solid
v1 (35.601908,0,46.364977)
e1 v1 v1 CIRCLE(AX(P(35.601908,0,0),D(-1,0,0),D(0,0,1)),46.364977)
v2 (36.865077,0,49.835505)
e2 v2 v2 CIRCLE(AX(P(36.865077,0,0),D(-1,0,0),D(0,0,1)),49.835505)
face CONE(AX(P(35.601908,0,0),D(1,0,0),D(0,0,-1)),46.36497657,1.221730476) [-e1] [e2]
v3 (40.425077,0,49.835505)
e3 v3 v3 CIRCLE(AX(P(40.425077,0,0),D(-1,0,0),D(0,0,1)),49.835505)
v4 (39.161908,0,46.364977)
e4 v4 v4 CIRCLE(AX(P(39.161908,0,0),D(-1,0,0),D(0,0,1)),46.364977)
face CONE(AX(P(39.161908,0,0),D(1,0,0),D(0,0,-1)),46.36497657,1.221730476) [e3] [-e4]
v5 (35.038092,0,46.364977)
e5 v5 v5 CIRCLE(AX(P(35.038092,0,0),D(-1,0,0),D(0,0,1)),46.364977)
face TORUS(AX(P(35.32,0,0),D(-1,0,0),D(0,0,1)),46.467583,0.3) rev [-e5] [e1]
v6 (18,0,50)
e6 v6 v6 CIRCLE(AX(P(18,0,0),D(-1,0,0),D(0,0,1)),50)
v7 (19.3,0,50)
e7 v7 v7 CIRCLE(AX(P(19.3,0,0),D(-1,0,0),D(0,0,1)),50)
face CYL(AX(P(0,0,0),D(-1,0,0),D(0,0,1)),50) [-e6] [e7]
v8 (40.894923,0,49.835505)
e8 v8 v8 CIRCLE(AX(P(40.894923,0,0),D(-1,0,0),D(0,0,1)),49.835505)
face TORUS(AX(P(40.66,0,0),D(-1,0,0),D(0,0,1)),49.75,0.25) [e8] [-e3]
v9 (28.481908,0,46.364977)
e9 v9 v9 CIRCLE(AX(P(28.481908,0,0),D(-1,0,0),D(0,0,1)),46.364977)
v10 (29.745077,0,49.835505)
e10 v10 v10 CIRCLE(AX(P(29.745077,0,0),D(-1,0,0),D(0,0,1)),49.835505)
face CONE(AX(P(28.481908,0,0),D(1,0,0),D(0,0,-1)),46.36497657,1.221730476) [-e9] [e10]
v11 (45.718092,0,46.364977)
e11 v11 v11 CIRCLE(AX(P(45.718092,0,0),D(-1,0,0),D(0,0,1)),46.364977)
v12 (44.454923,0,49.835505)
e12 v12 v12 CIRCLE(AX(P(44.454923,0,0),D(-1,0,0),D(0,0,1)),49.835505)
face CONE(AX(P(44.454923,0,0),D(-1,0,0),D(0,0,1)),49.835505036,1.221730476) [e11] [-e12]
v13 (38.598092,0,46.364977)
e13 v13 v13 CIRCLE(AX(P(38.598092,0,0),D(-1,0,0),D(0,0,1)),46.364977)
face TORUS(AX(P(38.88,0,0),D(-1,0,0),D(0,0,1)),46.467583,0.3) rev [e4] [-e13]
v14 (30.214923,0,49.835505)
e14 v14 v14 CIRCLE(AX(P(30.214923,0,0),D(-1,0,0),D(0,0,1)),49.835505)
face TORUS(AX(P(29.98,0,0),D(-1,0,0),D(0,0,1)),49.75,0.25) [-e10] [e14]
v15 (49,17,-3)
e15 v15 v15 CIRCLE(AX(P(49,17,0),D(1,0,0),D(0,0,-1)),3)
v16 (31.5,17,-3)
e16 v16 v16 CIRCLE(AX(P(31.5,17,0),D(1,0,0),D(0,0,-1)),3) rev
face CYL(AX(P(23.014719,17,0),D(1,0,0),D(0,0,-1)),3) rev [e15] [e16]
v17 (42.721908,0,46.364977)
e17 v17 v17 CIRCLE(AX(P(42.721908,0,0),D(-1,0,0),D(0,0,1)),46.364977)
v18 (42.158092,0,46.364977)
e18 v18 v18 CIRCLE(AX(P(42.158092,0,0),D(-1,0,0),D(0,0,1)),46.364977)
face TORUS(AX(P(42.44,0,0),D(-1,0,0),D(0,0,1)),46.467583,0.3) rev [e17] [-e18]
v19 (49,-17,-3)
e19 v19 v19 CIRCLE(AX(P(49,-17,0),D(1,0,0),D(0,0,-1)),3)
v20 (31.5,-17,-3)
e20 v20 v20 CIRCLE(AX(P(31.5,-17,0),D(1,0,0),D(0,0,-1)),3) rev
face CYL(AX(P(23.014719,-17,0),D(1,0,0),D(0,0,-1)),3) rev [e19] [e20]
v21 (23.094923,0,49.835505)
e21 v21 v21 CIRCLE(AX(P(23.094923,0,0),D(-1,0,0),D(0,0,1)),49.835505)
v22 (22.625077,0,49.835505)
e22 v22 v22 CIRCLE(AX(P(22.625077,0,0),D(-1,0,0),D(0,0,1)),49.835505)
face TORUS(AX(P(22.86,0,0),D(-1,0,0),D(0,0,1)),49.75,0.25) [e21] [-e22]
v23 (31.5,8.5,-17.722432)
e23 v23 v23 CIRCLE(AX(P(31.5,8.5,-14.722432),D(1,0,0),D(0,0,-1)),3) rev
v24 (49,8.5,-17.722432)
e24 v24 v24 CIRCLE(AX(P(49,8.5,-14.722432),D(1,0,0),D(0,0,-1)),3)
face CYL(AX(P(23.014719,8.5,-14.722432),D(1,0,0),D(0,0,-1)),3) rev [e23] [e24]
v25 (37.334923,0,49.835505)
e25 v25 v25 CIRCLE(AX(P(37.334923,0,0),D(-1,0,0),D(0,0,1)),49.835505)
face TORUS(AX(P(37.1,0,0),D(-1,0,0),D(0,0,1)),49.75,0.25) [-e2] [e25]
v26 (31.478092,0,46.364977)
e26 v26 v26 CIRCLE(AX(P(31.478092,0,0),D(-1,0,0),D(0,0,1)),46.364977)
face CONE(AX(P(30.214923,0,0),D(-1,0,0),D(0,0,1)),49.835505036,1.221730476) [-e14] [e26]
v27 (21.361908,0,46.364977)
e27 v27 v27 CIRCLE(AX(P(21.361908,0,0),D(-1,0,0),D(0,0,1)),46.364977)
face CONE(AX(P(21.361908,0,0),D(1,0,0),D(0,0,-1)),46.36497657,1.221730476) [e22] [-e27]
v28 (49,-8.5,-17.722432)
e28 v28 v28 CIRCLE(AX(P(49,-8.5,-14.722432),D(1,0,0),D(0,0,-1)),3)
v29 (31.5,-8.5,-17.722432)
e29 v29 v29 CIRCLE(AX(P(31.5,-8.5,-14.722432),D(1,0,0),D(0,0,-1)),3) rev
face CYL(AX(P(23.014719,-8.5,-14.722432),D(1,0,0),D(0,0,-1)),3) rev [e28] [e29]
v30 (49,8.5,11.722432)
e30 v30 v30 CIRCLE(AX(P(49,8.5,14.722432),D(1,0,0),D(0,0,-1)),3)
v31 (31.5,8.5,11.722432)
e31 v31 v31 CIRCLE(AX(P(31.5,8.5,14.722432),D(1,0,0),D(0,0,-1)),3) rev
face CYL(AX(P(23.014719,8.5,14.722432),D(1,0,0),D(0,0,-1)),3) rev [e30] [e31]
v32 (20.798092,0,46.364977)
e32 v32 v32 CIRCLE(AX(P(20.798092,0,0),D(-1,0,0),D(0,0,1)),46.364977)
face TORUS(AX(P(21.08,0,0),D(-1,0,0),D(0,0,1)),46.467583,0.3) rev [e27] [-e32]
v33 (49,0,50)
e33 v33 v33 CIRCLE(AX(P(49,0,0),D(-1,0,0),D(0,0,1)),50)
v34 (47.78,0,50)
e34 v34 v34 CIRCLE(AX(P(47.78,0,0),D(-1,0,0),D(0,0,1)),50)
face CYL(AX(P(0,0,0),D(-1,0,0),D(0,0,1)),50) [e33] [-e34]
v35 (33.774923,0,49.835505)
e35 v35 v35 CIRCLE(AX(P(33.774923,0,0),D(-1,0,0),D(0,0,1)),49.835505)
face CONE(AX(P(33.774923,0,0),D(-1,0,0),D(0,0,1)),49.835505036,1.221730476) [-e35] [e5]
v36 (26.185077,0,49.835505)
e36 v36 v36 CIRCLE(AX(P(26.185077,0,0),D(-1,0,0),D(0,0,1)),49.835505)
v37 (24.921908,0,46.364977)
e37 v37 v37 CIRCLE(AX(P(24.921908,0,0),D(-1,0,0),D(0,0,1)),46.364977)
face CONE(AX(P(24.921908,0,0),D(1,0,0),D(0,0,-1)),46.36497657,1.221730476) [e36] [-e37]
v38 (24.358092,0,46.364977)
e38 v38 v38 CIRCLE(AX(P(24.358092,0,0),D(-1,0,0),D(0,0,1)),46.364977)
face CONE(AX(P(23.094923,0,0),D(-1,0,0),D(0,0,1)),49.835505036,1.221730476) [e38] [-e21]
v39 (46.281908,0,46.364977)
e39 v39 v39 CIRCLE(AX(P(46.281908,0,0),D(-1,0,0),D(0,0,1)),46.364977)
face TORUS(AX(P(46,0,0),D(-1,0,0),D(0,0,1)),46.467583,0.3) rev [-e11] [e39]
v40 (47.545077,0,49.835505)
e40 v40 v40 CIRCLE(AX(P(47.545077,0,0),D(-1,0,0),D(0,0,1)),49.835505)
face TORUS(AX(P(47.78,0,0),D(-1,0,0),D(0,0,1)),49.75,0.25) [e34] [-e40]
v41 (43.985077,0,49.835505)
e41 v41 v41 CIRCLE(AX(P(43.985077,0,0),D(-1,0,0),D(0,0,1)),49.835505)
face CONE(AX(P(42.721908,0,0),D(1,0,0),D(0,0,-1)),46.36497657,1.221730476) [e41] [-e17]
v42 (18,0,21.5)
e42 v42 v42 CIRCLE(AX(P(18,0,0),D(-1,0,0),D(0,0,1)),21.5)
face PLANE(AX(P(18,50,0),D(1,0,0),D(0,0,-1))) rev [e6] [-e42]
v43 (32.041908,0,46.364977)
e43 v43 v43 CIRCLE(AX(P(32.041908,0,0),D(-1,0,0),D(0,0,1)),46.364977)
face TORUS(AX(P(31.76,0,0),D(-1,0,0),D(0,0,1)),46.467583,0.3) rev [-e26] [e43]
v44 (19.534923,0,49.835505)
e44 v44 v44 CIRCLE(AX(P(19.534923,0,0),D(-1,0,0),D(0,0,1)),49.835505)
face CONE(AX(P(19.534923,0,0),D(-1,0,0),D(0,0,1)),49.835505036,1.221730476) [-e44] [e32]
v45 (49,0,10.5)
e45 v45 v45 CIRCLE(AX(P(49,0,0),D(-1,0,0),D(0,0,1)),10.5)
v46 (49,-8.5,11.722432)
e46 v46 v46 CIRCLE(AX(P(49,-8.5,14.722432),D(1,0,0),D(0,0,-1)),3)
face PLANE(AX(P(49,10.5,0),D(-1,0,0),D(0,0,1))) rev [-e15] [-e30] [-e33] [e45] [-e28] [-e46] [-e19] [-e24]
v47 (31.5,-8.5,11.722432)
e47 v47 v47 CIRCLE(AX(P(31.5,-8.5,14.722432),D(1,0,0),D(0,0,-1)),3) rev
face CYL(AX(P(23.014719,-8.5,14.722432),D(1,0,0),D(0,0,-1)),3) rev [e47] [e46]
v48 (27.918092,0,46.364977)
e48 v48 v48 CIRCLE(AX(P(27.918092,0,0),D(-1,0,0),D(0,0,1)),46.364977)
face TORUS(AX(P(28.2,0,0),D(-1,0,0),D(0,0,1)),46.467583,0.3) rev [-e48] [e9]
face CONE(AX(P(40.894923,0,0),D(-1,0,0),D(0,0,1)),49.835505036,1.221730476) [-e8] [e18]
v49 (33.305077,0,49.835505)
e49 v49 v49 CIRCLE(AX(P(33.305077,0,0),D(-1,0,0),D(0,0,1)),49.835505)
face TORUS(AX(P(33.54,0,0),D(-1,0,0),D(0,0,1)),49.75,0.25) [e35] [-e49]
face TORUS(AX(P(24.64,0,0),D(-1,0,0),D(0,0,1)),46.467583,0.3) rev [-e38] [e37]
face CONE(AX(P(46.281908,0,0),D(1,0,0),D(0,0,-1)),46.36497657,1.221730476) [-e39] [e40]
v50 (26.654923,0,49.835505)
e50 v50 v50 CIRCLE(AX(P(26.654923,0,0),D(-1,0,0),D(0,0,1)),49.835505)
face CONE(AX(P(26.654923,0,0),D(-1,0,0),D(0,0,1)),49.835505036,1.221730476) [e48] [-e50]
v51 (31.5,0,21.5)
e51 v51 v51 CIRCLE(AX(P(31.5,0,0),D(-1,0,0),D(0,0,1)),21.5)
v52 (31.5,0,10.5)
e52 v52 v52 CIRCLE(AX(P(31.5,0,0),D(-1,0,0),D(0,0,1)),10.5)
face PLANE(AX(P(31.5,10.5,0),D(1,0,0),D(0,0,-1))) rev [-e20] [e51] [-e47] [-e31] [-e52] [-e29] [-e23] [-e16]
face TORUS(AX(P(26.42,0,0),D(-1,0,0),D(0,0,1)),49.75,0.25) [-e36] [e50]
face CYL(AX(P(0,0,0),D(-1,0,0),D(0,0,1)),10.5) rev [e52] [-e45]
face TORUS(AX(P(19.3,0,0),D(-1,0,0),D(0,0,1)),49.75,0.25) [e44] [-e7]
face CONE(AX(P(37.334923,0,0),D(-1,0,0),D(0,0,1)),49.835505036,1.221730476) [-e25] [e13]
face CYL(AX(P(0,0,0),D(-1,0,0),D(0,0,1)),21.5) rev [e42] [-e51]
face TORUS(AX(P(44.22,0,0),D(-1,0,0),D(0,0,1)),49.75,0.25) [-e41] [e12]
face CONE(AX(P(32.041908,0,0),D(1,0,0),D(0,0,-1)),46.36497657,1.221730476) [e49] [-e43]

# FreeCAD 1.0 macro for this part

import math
import FreeCAD as App
import Part
import Sketcher
Q = App.Units.Quantity


def add_polygon(sketch, points):
    """Adds a closed chain of lines whose ends are joined by coincident constraints."""
    first, n = sketch.GeometryCount, len(points)
    for a, b in zip(points, points[1:] + points[:1]):
        sketch.addGeometry(Part.LineSegment(App.Vector(*a, 0), App.Vector(*b, 0)), False)
    for i in range(n):
        sketch.addConstraint(Sketcher.Constraint("Coincident", first + i, 2, first + (i + 1) % n, 1))

doc = App.newDocument("Part")
body = doc.addObject("PartDesign::Body", "Body")

# Sketch on XY plane
sketch1 = body.newObject("Sketcher::SketchObject", "Sketch")
sketch1.AttachmentSupport = (doc.getObject("XY_Plane"), [""])
sketch1.MapMode = "FlatFace"
add_polygon(sketch1, [(49, 10.5), (49, 50), (18, 50), (18, 21.5), (31.5, 21.5), (31.5, 10.5)])  # lines 0-5
sketch1.addConstraint(Sketcher.Constraint("Vertical", 0))
sketch1.addConstraint(Sketcher.Constraint("Horizontal", 1))
sketch1.addConstraint(Sketcher.Constraint("Vertical", 2))
sketch1.addConstraint(Sketcher.Constraint("Horizontal", 3))
sketch1.addConstraint(Sketcher.Constraint("Vertical", 4))
sketch1.addConstraint(Sketcher.Constraint("Horizontal", 5))
sketch1.addConstraint(Sketcher.Constraint("DistanceX", 1, 2, 1, 1, Q("31 mm")))
sketch1.addConstraint(Sketcher.Constraint("DistanceY", 4, 2, 4, 1, Q("11 mm")))
sketch1.addConstraint(Sketcher.Constraint("DistanceX", 3, 1, 3, 2, Q("13.5 mm")))
sketch1.addConstraint(Sketcher.Constraint("DistanceY", 0, 1, 0, 2, Q("39.5 mm")))
sketch1.addConstraint(Sketcher.Constraint("DistanceX", -1, 1, 0, 2, Q("49 mm")))
sketch1.addConstraint(Sketcher.Constraint("DistanceY", -1, 1, 0, 2, Q("50 mm")))
revolution = body.newObject("PartDesign::Revolution", "Revolution")
revolution.Profile = sketch1
revolution.ReferenceAxis = (sketch1, ["H_Axis"])
revolution.Angle = 360

# Sketch on XY plane
sketch2 = body.newObject("Sketcher::SketchObject", "Sketch001")
sketch2.AttachmentSupport = (doc.getObject("XY_Plane"), [""])
sketch2.MapMode = "FlatFace"
sketch2.addGeometry(Part.LineSegment(App.Vector(46.281908, 46.364977, 0), App.Vector(47.545077, 49.835505, 0)), False)
sketch2.addGeometry(Part.ArcOfCircle(Part.Circle(App.Vector(47.78, 49.75, 0), App.Vector(0, 0, 1), 0.25), math.radians(90), math.radians(160)), False)
sketch2.addGeometry(Part.LineSegment(App.Vector(47.78, 50, 0), App.Vector(44.22, 50, 0)), False)
sketch2.addGeometry(Part.ArcOfCircle(Part.Circle(App.Vector(44.22, 49.75, 0), App.Vector(0, 0, 1), 0.25), math.radians(20), math.radians(90)), False)
sketch2.addGeometry(Part.LineSegment(App.Vector(44.454923, 49.835505, 0), App.Vector(45.718092, 46.364977, 0)), False)
sketch2.addGeometry(Part.ArcOfCircle(Part.Circle(App.Vector(46, 46.467583, 0), App.Vector(0, 0, 1), 0.3), math.radians(-160), math.radians(-20)), False)
sketch2.addConstraint(Sketcher.Constraint("Tangent", 0, 2, 1, 2))
sketch2.addConstraint(Sketcher.Constraint("Tangent", 1, 1, 2, 1))
sketch2.addConstraint(Sketcher.Constraint("Tangent", 2, 2, 3, 2))
sketch2.addConstraint(Sketcher.Constraint("Tangent", 3, 1, 4, 1))
sketch2.addConstraint(Sketcher.Constraint("Tangent", 4, 2, 5, 1))
sketch2.addConstraint(Sketcher.Constraint("Tangent", 5, 2, 0, 1))
sketch2.addConstraint(Sketcher.Constraint("Horizontal", 2))
sketch2.addConstraint(Sketcher.Constraint("Equal", 1, 3))
sketch2.addConstraint(Sketcher.Constraint("Horizontal", 0, 2, 3, 1))
sketch2.addConstraint(Sketcher.Constraint("Radius", 5, Q("0.3 mm")))
sketch2.addConstraint(Sketcher.Constraint("Angle", 0, Q("70 deg")))
sketch2.addConstraint(Sketcher.Constraint("Radius", 1, Q("0.25 mm")))
sketch2.addConstraint(Sketcher.Constraint("DistanceX", -1, 1, 5, 3, Q("46 mm")))
sketch2.addConstraint(Sketcher.Constraint("DistanceY", -1, 1, 1, 1, Q("50 mm")))
sketch2.addConstraint(Sketcher.Constraint("DistanceX", 2, 2, 2, 1, Q("3.56 mm")))
groove = body.newObject("PartDesign::Groove", "Groove")
groove.Profile = sketch2
groove.ReferenceAxis = (sketch2, ["H_Axis"])
groove.Angle = 360
doc.recompute()

linearpattern = body.newObject("PartDesign::LinearPattern", "LinearPattern")
linearpattern.Originals = [groove]
linearpattern.Direction = (doc.getObject("X_Axis"), [""])
linearpattern.Mode = "offset"
linearpattern.Offset = 3.56
linearpattern.Occurrences = 8
linearpattern.Reversed = True
body.Tip = linearpattern

# Sketch on YZ plane
sketch3 = body.newObject("Sketcher::SketchObject", "Sketch002")
sketch3.AttachmentSupport = (doc.getObject("YZ_Plane"), [""])
sketch3.MapMode = "FlatFace"
sketch3.AttachmentOffset = App.Placement(App.Vector(0, 0, 49), App.Rotation())
sketch3.addGeometry(Part.Circle(App.Vector(17, 0, 0), App.Vector(0, 0, 1), 3), False)
sketch3.addGeometry(Part.Circle(App.Vector(8.5, -14.722432, 0), App.Vector(0, 0, 1), 3), False)
sketch3.addGeometry(Part.Circle(App.Vector(-8.5, -14.722432, 0), App.Vector(0, 0, 1), 3), False)
sketch3.addGeometry(Part.Circle(App.Vector(-17, 0, 0), App.Vector(0, 0, 1), 3), False)
sketch3.addGeometry(Part.Circle(App.Vector(-8.5, 14.722432, 0), App.Vector(0, 0, 1), 3), False)
sketch3.addGeometry(Part.Circle(App.Vector(8.5, 14.722432, 0), App.Vector(0, 0, 1), 3), False)
sketch3.addConstraint(Sketcher.Constraint("Equal", 0, 1))
sketch3.addConstraint(Sketcher.Constraint("Equal", 1, 2))
sketch3.addConstraint(Sketcher.Constraint("Equal", 2, 3))
sketch3.addConstraint(Sketcher.Constraint("Equal", 3, 4))
sketch3.addConstraint(Sketcher.Constraint("Equal", 4, 5))
sketch3.addConstraint(Sketcher.Constraint("Symmetric", 0, 3, 3, 3, -1, 1))
sketch3.addConstraint(Sketcher.Constraint("Symmetric", 1, 3, 4, 3, -1, 1))
sketch3.addConstraint(Sketcher.Constraint("Symmetric", 2, 3, 5, 3, -1, 1))
sketch3.addConstraint(Sketcher.Constraint("Symmetric", 1, 3, 2, 3, -2))
sketch3.addConstraint(Sketcher.Constraint("PointOnObject", 0, 3, -1))
sketch3.addConstraint(Sketcher.Constraint("Diameter", 0, Q("6 mm")))
sketch3.addConstraint(Sketcher.Constraint("DistanceX", -1, 1, 0, 3, Q("17 mm")))
sketch3.addConstraint(Sketcher.Constraint("DistanceX", 2, 3, 1, 3, Q("17 mm")))
sketch3.addConstraint(Sketcher.Constraint("DistanceY", 1, 3, -1, 1, Q("14.722432 mm")))
pocket1 = body.newObject("PartDesign::Pocket", "Pocket")
pocket1.Profile = sketch3
pocket1.Length = 17.5

doc.recompute()
